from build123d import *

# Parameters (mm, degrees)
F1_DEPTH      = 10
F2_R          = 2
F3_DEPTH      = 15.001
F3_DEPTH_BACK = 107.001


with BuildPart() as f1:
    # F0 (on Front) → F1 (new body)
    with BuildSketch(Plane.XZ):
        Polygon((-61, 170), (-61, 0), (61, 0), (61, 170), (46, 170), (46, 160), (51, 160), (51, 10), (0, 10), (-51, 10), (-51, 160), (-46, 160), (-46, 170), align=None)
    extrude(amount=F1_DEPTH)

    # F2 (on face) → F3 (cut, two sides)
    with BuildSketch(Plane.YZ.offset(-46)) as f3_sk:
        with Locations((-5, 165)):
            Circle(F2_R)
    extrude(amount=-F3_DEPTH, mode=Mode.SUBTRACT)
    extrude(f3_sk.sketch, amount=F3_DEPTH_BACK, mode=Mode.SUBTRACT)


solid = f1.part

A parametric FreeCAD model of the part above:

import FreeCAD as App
import Part
import Sketcher

V = App.Vector

doc = App.newDocument("Part")
body = doc.addObject("PartDesign::Body", "Body")

sketch1 = body.newObject("Sketcher::SketchObject", "Sketch")
sketch1.AttachmentSupport = (doc.getObject("XZ_Plane"), [""])
sketch1.MapMode = "FlatFace"
sketch1.addGeometry(Part.LineSegment(V(-61, 170, 0), V(-61, 0, 0)), False)
sketch1.addGeometry(Part.LineSegment(V(-61, 0, 0), V(61, 0, 0)), False)
sketch1.addGeometry(Part.LineSegment(V(61, 0, 0), V(61, 170, 0)), False)
sketch1.addGeometry(Part.LineSegment(V(61, 170, 0), V(46, 170, 0)), False)
sketch1.addGeometry(Part.LineSegment(V(46, 170, 0), V(46, 160, 0)), False)
sketch1.addGeometry(Part.LineSegment(V(46, 160, 0), V(51, 160, 0)), False)
sketch1.addGeometry(Part.LineSegment(V(51, 160, 0), V(51, 10, 0)), False)
sketch1.addGeometry(Part.LineSegment(V(51, 10, 0), V(-51, 10, 0)), False)
sketch1.addGeometry(Part.LineSegment(V(-51, 10, 0), V(-51, 160, 0)), False)
sketch1.addGeometry(Part.LineSegment(V(-51, 160, 0), V(-46, 160, 0)), False)
sketch1.addGeometry(Part.LineSegment(V(-46, 160, 0), V(-46, 170, 0)), False)
sketch1.addGeometry(Part.LineSegment(V(-46, 170, 0), V(-61, 170, 0)), False)
sketch1.addConstraint(Sketcher.Constraint("Coincident", 0, 2, 1, 1))
sketch1.addConstraint(Sketcher.Constraint("Coincident", 1, 2, 2, 1))
sketch1.addConstraint(Sketcher.Constraint("Coincident", 2, 2, 3, 1))
sketch1.addConstraint(Sketcher.Constraint("Coincident", 3, 2, 4, 1))
sketch1.addConstraint(Sketcher.Constraint("Coincident", 4, 2, 5, 1))
sketch1.addConstraint(Sketcher.Constraint("Coincident", 5, 2, 6, 1))
sketch1.addConstraint(Sketcher.Constraint("Coincident", 6, 2, 7, 1))
sketch1.addConstraint(Sketcher.Constraint("Coincident", 7, 2, 8, 1))
sketch1.addConstraint(Sketcher.Constraint("Coincident", 8, 2, 9, 1))
sketch1.addConstraint(Sketcher.Constraint("Coincident", 9, 2, 10, 1))
sketch1.addConstraint(Sketcher.Constraint("Coincident", 10, 2, 11, 1))
sketch1.addConstraint(Sketcher.Constraint("Coincident", 11, 2, 0, 1))
sketch1.addConstraint(Sketcher.Constraint("Vertical", 0))
sketch1.addConstraint(Sketcher.Constraint("Horizontal", 1))
sketch1.addConstraint(Sketcher.Constraint("Vertical", 2))
sketch1.addConstraint(Sketcher.Constraint("Horizontal", 3))
sketch1.addConstraint(Sketcher.Constraint("Vertical", 4))
sketch1.addConstraint(Sketcher.Constraint("Horizontal", 5))
sketch1.addConstraint(Sketcher.Constraint("Vertical", 6))
sketch1.addConstraint(Sketcher.Constraint("Horizontal", 7))
sketch1.addConstraint(Sketcher.Constraint("Vertical", 8))
sketch1.addConstraint(Sketcher.Constraint("Horizontal", 9))
sketch1.addConstraint(Sketcher.Constraint("Vertical", 10))
sketch1.addConstraint(Sketcher.Constraint("Horizontal", 11))
sketch1.addConstraint(Sketcher.Constraint("Symmetric", 0, 2, 1, 2, -1, 1))
sketch1.addConstraint(Sketcher.Constraint("Symmetric", 5, 2, 8, 2, -2))
sketch1.addConstraint(Sketcher.Constraint("Symmetric", 3, 2, 10, 2, -2))
sketch1.addConstraint(Sketcher.Constraint("DistanceX", 1, 1, 1, 2, 122.0))
sketch1.addConstraint(Sketcher.Constraint("DistanceX", 3, 2, 3, 1, 15.0))
sketch1.addConstraint(Sketcher.Constraint("DistanceX", 5, 1, 5, 2, 5.0))
sketch1.addConstraint(Sketcher.Constraint("DistanceY", 0, 2, 0, 1, 170.0))
sketch1.addConstraint(Sketcher.Constraint("DistanceY", 4, 2, 4, 1, 10.0))
sketch1.addConstraint(Sketcher.Constraint("DistanceY", 6, 2, 6, 1, 150.0))
pad1 = body.newObject("PartDesign::Pad", "Pad")
pad1.Profile = sketch1
pad1.Length = 10

sketch2 = body.newObject("Sketcher::SketchObject", "Sketch001")
sketch2.AttachmentSupport = (doc.getObject("YZ_Plane"), [""])
sketch2.MapMode = "FlatFace"
sketch2.AttachmentOffset = App.Placement(V(0, 0, -46), App.Rotation())
sketch2.addGeometry(Part.Circle(V(-5, 165, 0), V(0, 0, 1), 2), False)
sketch2.addConstraint(Sketcher.Constraint("Diameter", 0, 4.0))
sketch2.addConstraint(Sketcher.Constraint("DistanceX", 0, 3, -1, 1, 5.0))
sketch2.addConstraint(Sketcher.Constraint("DistanceY", -1, 1, 0, 3, 165.0))
pocket1 = body.newObject("PartDesign::Pocket", "Pocket")
pocket1.Profile = sketch2
pocket1.Type = "ThroughAll"
pocket1.Midplane = True

doc.recompute()
